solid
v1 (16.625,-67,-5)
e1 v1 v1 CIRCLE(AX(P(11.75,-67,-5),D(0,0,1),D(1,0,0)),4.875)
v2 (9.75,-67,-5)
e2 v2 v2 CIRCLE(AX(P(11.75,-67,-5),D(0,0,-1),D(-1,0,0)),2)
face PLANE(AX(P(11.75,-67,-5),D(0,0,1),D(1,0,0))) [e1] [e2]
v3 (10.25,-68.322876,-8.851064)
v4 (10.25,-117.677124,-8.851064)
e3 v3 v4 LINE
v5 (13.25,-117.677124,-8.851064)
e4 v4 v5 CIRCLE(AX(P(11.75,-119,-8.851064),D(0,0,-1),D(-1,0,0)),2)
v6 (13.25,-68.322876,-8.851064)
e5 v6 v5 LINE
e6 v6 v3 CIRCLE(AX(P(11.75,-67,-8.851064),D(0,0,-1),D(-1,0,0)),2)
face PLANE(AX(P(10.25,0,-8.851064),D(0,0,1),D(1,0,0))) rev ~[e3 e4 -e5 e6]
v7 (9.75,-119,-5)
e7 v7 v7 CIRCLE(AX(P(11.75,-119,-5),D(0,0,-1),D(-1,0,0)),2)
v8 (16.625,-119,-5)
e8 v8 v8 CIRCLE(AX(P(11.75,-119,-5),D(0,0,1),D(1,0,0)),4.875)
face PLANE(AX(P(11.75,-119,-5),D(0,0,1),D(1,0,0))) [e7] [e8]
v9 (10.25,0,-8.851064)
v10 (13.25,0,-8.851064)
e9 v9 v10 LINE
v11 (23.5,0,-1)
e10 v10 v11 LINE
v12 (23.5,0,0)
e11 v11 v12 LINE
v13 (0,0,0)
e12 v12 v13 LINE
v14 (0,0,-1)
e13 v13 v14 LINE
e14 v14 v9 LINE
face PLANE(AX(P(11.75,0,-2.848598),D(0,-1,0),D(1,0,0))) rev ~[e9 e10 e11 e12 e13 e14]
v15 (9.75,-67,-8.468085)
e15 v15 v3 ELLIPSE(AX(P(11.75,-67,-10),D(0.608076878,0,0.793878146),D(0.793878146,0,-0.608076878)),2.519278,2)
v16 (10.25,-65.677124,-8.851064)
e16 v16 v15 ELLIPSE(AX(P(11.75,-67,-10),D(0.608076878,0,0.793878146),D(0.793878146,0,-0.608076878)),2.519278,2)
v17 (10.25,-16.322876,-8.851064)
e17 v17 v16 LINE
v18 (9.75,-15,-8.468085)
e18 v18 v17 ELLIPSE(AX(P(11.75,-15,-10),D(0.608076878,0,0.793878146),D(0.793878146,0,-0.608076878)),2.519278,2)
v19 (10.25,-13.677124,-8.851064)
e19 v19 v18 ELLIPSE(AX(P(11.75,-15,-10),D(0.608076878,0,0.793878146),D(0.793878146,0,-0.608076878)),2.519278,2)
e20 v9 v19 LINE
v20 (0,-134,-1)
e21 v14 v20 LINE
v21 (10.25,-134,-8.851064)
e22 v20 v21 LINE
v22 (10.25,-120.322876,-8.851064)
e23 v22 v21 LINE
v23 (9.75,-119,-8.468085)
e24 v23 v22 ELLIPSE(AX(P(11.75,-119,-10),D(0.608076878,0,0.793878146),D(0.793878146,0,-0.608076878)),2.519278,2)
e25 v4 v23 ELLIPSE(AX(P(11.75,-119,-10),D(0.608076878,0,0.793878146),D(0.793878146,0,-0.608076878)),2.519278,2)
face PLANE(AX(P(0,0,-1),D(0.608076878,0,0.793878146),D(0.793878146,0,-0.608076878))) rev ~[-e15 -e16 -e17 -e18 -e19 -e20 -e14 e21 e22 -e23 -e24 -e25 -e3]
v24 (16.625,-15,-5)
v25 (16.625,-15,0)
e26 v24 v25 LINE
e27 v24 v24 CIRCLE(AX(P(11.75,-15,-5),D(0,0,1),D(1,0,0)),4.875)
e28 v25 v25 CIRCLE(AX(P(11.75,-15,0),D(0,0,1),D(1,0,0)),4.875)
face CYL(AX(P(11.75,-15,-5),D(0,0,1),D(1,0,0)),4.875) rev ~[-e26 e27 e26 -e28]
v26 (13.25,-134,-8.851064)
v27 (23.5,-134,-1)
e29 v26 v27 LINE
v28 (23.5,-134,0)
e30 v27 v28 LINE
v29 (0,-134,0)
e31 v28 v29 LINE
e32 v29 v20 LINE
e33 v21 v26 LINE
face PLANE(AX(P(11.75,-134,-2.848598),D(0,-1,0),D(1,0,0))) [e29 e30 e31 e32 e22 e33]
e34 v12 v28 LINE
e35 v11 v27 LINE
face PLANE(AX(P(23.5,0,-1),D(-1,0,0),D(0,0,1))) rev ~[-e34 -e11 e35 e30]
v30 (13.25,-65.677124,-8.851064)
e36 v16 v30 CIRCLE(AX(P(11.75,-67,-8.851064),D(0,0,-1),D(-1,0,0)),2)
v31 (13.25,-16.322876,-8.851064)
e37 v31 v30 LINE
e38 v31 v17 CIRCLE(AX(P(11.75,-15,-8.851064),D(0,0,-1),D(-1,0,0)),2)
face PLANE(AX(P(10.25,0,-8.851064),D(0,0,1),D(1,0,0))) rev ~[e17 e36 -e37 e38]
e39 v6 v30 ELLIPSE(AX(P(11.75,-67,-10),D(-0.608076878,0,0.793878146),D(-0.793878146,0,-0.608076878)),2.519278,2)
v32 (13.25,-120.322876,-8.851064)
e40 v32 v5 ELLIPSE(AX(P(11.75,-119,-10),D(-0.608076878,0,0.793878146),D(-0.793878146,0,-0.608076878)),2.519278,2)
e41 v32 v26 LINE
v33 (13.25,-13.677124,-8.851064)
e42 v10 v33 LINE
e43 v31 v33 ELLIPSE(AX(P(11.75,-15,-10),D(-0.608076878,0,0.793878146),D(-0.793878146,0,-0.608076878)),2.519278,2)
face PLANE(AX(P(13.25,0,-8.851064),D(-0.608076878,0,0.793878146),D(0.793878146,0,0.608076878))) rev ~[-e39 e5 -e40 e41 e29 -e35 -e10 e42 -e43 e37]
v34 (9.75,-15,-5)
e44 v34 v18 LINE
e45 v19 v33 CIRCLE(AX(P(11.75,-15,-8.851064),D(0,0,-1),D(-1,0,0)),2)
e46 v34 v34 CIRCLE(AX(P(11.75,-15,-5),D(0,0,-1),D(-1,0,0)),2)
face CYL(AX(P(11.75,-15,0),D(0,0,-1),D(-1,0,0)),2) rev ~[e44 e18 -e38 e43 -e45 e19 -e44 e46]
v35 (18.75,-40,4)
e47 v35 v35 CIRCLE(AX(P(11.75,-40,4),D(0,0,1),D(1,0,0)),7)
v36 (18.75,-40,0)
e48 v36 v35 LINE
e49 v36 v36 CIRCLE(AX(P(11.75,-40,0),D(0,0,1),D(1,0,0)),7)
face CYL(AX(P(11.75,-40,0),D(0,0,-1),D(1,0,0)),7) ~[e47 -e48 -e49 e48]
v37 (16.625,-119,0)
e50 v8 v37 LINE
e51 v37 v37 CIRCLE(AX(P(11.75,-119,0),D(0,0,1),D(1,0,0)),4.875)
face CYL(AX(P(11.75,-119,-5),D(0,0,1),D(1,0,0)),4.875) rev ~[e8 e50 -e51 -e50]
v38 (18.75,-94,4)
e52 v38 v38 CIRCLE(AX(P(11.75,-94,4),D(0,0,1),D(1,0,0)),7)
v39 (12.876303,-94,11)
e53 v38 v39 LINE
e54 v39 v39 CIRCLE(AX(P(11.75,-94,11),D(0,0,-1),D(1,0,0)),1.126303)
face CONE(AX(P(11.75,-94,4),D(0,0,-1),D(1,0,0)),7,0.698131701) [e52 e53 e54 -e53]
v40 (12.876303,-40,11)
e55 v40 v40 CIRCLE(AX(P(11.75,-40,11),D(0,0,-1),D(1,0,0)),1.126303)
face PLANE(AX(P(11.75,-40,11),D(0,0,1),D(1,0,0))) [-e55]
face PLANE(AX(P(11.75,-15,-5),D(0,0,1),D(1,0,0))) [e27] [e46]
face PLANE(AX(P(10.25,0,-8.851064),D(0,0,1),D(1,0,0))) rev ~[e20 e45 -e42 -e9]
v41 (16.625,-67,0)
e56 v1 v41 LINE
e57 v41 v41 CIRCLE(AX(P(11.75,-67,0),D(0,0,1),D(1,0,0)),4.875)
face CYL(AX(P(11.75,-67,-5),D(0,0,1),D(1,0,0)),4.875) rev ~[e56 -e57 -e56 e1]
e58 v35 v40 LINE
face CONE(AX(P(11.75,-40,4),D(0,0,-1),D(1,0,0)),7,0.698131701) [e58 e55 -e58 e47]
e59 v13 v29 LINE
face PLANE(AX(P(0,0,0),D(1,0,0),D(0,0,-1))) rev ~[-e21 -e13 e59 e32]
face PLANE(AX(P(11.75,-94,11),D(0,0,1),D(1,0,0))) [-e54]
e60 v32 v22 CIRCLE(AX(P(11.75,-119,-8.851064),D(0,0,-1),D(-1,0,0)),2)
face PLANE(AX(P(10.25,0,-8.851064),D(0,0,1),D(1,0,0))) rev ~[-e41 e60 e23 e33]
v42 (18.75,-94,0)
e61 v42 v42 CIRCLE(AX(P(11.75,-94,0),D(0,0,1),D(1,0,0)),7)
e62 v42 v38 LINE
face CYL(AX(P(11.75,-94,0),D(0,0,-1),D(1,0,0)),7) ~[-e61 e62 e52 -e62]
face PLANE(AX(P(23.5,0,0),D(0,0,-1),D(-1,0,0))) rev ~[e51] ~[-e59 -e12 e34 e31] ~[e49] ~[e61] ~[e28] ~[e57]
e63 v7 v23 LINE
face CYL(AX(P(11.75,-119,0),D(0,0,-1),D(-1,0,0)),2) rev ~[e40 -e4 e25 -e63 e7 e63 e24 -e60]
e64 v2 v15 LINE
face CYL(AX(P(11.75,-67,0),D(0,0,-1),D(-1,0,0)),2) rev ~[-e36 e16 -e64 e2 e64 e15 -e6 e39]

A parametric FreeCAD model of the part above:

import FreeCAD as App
import Part
import Sketcher

V = App.Vector
Q = App.Units.Quantity


def add_polygon(sketch, points):
    """Adds a closed chain of lines whose ends are joined by coincident constraints."""
    first, n = sketch.GeometryCount, len(points)
    for a, b in zip(points, points[1:] + points[:1]):
        sketch.addGeometry(Part.LineSegment(App.Vector(*a, 0), App.Vector(*b, 0)), False)
    for i in range(n):
        sketch.addConstraint(Sketcher.Constraint("Coincident", first + i, 2, first + (i + 1) % n, 1))

doc = App.newDocument("Part")
body = doc.addObject("PartDesign::Body", "Body")

# Sketch on XZ plane
sketch1 = doc.addObject("Sketcher::SketchObject", "Sketch")
body.addObject(sketch1)
sketch1.AttachmentSupport = (doc.XZ_Plane, [""])
sketch1.MapMode = "FlatFace"
add_polygon(sketch1, [(23.5, 0), (0, 0), (0, -1), (10.2, -8.9), (13.2, -8.9), (23.5, -1)])  # lines 0-5
sketch1.addConstraint([
    Sketcher.Constraint("Horizontal", 0),
    Sketcher.Constraint("Vertical", 1),
    Sketcher.Constraint("Horizontal", 3),
    Sketcher.Constraint("Vertical", 5),
    Sketcher.Constraint("Coincident", 0, 2, -1, 1),
    Sketcher.Constraint("Horizontal", 1, 2, 4, 2),
    Sketcher.Constraint("Equal", 2, 4),
    Sketcher.Constraint("DistanceX", 3, 1, 3, 2, Q("3 mm")),
    Sketcher.Constraint("DistanceY", 1, 2, 1, 1, Q("1 mm")),
    Sketcher.Constraint("DistanceX", 0, 2, 0, 1, Q("23.5 mm")),
    Sketcher.Constraint("Distance", 2, Q("12.911301 mm")),
])
pad1 = doc.addObject("PartDesign::Pad", "Pad")
body.addObject(pad1)
pad1.Profile = sketch1
pad1.Length = 134

# Sketch on XY plane
sketch2 = doc.addObject("Sketcher::SketchObject", "Sketch001")
body.addObject(sketch2)
sketch2.AttachmentSupport = (doc.XY_Plane, [""])
sketch2.MapMode = "FlatFace"
sketch2.addGeometry([
    Part.Circle(V(11.8, -15, 0), V(0, 0, 1), 2),
    Part.Circle(V(11.8, -67, 0), V(0, 0, 1), 2),
    Part.Circle(V(11.8, -119, 0), V(0, 0, 1), 2),
], False)
sketch2.addConstraint([
    Sketcher.Constraint("Equal", 0, 1),
    Sketcher.Constraint("Equal", 1, 2),
    Sketcher.Constraint("Vertical", 0, 3, 1, 3),
    Sketcher.Constraint("Vertical", 1, 3, 2, 3),
    Sketcher.Constraint("Diameter", 0, Q("4 mm")),
    Sketcher.Constraint("DistanceY", 0, 3, -1, 1, Q("15 mm")),
    Sketcher.Constraint("DistanceY", 1, 3, -1, 1, Q("67 mm")),
    Sketcher.Constraint("DistanceY", 2, 3, -1, 1, Q("119 mm")),
    Sketcher.Constraint("DistanceX", -1, 1, 0, 3, Q("11.75 mm")),
])
doc.recompute()
hole = doc.addObject("PartDesign::Hole", "Hole")
body.addObject(hole)
hole.Profile = sketch2
hole.ThreadType = "None"
hole.Diameter = 4
hole.DepthType = "ThroughAll"
hole.HoleCutType = "Counterbore"
hole.HoleCutDiameter = 9.75
hole.HoleCutDepth = 5

# Sketch on XY plane
sketch3 = doc.addObject("Sketcher::SketchObject", "Sketch002")
body.addObject(sketch3)
sketch3.AttachmentSupport = (doc.XY_Plane, [""])
sketch3.MapMode = "FlatFace"
sketch3.addGeometry([
    Part.Circle(V(12, -40, 0), V(0, 0, 1), 7),
    Part.Circle(V(12, -94, 0), V(0, 0, 1), 7),
], False)
sketch3.addConstraint([
    Sketcher.Constraint("Equal", 0, 1),
    Sketcher.Constraint("Vertical", 0, 3, 1, 3),
    Sketcher.Constraint("Diameter", 0, Q("14 mm")),
    Sketcher.Constraint("DistanceY", 0, 3, -1, 1, Q("40 mm")),
    Sketcher.Constraint("DistanceY", 1, 3, -1, 1, Q("94 mm")),
    Sketcher.Constraint("DistanceX", -1, 1, 0, 3, Q("11.75 mm")),
])
pad2 = doc.addObject("PartDesign::Pad", "Pad001")
body.addObject(pad2)
pad2.Profile = sketch3
pad2.Length = 4

# Sketch on XY plane
sketch4 = doc.addObject("Sketcher::SketchObject", "Sketch003")
body.addObject(sketch4)
sketch4.AttachmentSupport = (doc.XY_Plane, [""])
sketch4.MapMode = "FlatFace"
sketch4.AttachmentOffset = App.Placement(V(0, 0, 4), App.Rotation())
sketch4.addGeometry([
    Part.Circle(V(12, -40, 0), V(0, 0, 1), 7),
    Part.Circle(V(12, -94, 0), V(0, 0, 1), 7),
], False)
sketch4.addConstraint([
    Sketcher.Constraint("Equal", 0, 1),
    Sketcher.Constraint("Vertical", 0, 3, 1, 3),
    Sketcher.Constraint("Diameter", 0, Q("14 mm")),
    Sketcher.Constraint("DistanceY", 0, 3, -1, 1, Q("40 mm")),
    Sketcher.Constraint("DistanceY", 1, 3, -1, 1, Q("94 mm")),
    Sketcher.Constraint("DistanceX", -1, 1, 0, 3, Q("11.75 mm")),
])
pad3 = doc.addObject("PartDesign::Pad", "Pad002")
body.addObject(pad3)
pad3.Profile = sketch4
pad3.Length = 7
pad3.TaperAngle = -40

doc.recompute()
